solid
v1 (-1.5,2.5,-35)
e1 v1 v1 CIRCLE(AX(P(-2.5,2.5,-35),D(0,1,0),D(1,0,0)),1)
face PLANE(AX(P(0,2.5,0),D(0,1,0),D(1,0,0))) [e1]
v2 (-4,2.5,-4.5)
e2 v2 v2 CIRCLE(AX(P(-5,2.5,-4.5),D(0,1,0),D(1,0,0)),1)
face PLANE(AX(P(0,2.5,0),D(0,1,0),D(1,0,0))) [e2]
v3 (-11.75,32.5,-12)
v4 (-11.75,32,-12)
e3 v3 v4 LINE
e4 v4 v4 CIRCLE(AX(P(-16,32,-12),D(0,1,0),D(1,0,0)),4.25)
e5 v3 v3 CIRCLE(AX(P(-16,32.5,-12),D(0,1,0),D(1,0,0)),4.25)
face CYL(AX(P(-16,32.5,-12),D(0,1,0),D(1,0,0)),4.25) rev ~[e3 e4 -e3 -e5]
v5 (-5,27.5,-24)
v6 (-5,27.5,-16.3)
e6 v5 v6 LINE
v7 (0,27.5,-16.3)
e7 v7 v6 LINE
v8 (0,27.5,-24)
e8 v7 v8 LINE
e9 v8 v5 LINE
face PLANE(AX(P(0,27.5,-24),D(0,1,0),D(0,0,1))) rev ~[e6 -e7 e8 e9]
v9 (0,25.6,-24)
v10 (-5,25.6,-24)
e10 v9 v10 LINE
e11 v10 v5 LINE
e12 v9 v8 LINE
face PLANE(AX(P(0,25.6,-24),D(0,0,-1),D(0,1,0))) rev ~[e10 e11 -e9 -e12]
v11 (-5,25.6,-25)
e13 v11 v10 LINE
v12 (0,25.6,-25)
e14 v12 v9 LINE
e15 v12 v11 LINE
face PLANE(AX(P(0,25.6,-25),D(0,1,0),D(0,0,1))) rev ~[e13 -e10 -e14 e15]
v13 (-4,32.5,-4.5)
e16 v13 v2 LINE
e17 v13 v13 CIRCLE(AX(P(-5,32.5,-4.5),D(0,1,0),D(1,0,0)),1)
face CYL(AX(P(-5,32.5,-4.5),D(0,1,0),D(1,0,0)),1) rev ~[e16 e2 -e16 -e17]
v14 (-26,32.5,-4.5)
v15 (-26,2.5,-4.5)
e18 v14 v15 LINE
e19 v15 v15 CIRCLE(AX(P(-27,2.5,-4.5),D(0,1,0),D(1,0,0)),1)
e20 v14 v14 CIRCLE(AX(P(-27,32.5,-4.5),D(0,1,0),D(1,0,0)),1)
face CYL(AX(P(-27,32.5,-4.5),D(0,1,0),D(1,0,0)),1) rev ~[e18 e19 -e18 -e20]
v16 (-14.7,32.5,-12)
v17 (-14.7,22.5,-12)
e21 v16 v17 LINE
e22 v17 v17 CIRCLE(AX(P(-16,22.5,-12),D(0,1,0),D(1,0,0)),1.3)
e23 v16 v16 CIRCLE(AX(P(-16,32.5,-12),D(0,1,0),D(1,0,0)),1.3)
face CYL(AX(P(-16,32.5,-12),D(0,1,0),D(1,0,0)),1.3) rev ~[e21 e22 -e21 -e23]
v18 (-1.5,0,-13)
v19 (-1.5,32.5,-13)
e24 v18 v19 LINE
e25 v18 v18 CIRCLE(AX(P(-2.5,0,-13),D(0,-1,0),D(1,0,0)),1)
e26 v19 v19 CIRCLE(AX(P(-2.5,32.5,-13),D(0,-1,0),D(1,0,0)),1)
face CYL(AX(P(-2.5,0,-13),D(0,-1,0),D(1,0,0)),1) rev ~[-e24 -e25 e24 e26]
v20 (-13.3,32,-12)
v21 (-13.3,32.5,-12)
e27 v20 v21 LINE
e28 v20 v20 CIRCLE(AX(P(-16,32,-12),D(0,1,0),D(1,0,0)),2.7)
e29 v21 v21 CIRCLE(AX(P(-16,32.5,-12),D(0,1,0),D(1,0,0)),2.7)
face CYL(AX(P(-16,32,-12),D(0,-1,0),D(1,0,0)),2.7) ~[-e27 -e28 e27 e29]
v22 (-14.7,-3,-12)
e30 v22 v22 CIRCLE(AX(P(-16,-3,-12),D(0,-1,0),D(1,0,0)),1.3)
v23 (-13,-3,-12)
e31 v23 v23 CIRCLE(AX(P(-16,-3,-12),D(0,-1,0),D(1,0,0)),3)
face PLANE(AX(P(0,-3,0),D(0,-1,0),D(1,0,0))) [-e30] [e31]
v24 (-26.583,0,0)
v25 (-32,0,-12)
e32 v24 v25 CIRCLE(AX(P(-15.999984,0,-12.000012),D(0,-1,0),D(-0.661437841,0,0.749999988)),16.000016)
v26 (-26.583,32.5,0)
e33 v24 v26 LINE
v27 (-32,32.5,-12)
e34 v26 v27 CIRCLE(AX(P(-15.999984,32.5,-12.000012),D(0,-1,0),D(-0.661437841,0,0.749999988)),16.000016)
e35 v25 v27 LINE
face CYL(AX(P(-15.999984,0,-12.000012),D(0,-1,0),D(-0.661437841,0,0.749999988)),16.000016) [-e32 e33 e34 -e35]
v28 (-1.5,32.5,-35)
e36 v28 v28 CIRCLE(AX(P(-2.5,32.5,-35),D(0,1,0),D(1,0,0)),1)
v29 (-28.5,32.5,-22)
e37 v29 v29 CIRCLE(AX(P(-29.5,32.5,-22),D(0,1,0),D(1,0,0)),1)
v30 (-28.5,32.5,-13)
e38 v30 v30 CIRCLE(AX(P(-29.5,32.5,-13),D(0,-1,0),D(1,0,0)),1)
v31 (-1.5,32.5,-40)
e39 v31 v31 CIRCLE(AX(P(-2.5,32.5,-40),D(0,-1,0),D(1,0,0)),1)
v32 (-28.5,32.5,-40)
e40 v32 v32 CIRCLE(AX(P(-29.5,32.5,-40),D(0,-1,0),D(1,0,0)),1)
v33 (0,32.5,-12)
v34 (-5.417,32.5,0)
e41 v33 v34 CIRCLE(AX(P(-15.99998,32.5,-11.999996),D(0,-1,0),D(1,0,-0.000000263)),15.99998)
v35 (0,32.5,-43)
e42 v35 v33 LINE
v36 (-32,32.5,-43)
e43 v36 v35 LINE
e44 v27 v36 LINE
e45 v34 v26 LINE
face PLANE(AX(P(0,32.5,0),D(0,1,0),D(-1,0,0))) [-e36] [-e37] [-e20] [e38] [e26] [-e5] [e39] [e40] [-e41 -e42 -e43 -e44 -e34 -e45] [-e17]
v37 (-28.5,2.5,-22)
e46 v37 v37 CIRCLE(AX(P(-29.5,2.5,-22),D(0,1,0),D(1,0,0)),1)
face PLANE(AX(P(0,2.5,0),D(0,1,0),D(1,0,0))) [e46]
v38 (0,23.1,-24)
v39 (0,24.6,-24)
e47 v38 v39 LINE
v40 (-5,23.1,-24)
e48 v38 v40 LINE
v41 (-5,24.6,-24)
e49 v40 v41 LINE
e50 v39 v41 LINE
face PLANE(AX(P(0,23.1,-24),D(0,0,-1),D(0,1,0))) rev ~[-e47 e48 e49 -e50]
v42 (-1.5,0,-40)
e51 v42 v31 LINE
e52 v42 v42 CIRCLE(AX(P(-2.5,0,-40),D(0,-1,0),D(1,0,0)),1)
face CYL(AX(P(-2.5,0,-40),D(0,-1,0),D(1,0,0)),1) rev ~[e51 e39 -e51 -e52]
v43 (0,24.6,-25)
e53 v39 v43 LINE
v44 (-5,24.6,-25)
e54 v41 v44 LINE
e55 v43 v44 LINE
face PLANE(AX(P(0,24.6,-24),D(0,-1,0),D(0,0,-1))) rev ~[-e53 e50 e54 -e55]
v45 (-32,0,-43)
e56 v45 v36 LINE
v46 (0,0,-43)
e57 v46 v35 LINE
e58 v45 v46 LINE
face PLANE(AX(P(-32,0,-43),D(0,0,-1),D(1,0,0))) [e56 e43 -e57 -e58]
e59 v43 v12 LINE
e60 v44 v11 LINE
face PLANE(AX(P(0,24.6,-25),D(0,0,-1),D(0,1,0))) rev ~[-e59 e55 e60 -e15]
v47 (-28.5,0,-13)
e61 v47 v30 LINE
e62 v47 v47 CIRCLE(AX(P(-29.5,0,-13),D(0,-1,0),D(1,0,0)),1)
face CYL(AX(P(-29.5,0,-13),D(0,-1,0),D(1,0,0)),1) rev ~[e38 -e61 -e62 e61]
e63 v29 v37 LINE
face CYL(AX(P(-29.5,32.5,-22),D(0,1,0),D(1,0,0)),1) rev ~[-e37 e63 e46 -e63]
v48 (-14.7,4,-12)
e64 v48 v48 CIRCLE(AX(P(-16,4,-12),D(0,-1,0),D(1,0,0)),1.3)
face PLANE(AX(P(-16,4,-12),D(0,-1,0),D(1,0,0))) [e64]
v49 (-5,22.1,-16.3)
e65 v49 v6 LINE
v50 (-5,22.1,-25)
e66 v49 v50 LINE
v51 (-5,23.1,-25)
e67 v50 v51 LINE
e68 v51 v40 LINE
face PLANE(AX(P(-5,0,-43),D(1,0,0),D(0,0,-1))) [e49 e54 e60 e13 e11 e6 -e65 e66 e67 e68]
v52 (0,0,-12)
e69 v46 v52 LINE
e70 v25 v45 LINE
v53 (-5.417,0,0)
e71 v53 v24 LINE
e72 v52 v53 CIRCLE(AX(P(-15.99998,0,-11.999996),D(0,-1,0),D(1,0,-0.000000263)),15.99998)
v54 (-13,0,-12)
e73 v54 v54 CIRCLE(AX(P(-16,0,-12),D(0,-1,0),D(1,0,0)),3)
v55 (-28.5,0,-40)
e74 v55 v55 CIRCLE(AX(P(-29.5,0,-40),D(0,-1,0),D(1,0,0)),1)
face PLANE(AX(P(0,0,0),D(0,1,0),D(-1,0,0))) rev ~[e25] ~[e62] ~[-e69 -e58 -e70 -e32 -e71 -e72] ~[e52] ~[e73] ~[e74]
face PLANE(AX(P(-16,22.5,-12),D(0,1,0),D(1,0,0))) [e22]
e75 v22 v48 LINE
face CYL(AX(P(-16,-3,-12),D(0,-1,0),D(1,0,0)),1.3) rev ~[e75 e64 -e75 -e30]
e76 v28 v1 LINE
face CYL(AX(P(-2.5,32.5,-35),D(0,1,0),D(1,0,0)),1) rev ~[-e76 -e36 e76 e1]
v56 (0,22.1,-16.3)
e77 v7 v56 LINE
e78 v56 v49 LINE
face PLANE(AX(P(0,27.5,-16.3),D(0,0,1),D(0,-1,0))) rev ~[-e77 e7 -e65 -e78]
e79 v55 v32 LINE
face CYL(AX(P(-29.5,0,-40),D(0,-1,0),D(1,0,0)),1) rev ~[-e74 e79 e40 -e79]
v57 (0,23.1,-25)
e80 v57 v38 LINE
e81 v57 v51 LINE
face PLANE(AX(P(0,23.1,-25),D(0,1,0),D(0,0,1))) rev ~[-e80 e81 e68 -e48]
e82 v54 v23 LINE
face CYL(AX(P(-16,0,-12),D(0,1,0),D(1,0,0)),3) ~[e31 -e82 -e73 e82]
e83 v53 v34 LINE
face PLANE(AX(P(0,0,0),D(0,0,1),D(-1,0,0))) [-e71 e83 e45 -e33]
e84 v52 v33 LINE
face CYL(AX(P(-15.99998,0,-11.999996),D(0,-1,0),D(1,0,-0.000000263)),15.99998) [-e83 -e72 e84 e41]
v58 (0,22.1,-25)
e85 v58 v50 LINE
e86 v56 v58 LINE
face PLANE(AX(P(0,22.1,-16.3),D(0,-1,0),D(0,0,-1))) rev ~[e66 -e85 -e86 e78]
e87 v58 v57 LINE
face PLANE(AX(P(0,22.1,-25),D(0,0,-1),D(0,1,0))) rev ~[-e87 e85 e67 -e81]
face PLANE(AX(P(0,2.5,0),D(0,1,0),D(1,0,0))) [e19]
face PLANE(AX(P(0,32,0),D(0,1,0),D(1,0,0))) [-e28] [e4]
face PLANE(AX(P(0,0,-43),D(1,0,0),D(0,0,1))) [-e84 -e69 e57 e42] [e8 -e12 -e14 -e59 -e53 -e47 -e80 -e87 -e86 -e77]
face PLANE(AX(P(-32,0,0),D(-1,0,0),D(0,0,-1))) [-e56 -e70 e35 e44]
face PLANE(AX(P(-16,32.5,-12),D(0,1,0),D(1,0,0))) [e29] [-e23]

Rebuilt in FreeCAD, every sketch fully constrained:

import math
import FreeCAD as App
import Part
import Sketcher
from FreeCAD import Vector


def add_polygon(sketch, points):
    """Adds a closed chain of lines whose ends are joined by coincident constraints."""
    first, n = sketch.GeometryCount, len(points)
    for a, b in zip(points, points[1:] + points[:1]):
        sketch.addGeometry(Part.LineSegment(App.Vector(*a, 0), App.Vector(*b, 0)), False)
    for i in range(n):
        sketch.addConstraint(Sketcher.Constraint("Coincident", first + i, 2, first + (i + 1) % n, 1))

doc = App.newDocument("Part")
params = doc.addObject("Spreadsheet::Sheet", "Params")
for row, (alias, value) in enumerate([
    ("sketch1_width", "32 mm"),
    ("sketch1_height", "43 mm"),
    ("pad1_length", "32.5 mm"),
    ("sketch2_radius", "16 mm"),
    ("sketch2_height", "12 mm"),
    ("pocket1_length", "32.5 mm"),
    ("sketch3_diameter", "2 mm"),
    ("pocket2_length", "32.5 mm"),
    ("sketch4_diameter", "2 mm"),
    ("pocket3_length", "30 mm"),
    ("sketch5_diameter", "6 mm"),
    ("pad2_length", "3 mm"),
    ("sketch6_diameter", "2.6 mm"),
    ("pocket4_length", "7 mm"),
    ("sketch7_diameter", "8.5 mm"),
    ("pocket5_length", "0.5 mm"),
    ("sketch8_diameter", "5.4 mm"),
    ("pad3_length", "0.5 mm"),
    ("sketch9_diameter", "2.6 mm"),
    ("pocket6_length", "10 mm"),
    ("sketch10_width", "1 mm"),
    ("sketch10_height", "8.7 mm"),
    ("pocket7_length", "5 mm"),
], start=1):
    params.set(f"A{row}", alias)
    params.set(f"B{row}", "=" + value)
    params.setAlias(f"B{row}", alias)

body = doc.addObject("PartDesign::Body", "Body")

sketch1 = body.newObject("Sketcher::SketchObject", "Sketch")
sketch1.AttachmentSupport = (doc.getObject("XZ_Plane"), [""])
sketch1.MapMode = "FlatFace"
add_polygon(sketch1, [(-32, 0), (0, 0), (0, -43), (-32, -43)])
sketch1.addConstraint(Sketcher.Constraint("Horizontal", 0))
sketch1.addConstraint(Sketcher.Constraint("Vertical", 1))
sketch1.addConstraint(Sketcher.Constraint("Horizontal", 2))
sketch1.addConstraint(Sketcher.Constraint("Vertical", 3))
sketch1.addConstraint(Sketcher.Constraint("Coincident", 0, 2, -1, 1))
sketch1.addConstraint(Sketcher.Constraint("DistanceX", 0, 1, 0, 2, 32.0))
sketch1.addConstraint(Sketcher.Constraint("DistanceY", 1, 2, 1, 1, 43.0))
sketch1.setExpression("Constraints[9]", "Params.sketch1_width")
sketch1.setExpression("Constraints[10]", "Params.sketch1_height")
pad1 = body.newObject("PartDesign::Pad", "Pad")
pad1.Profile = sketch1
pad1.setExpression("Length", "Params.pad1_length")
pad1.Reversed = True

sketch2 = body.newObject("Sketcher::SketchObject", "Sketch001")
sketch2.AttachmentSupport = (doc.getObject("XZ_Plane"), [""])
sketch2.MapMode = "FlatFace"
sketch2.addGeometry(Part.LineSegment(Vector(-27, 0, 0), Vector(-32, 0, 0)), False)
sketch2.addGeometry(Part.LineSegment(Vector(-32, 0, 0), Vector(-32, -12, 0)), False)
sketch2.addGeometry(Part.ArcOfCircle(Part.Circle(Vector(-16, -12, 0), Vector(0, 0, 1), 16), math.radians(131), math.radians(180)), False)
sketch2.addGeometry(Part.LineSegment(Vector(0, 0, 0), Vector(-5, 0, 0)), False)
sketch2.addGeometry(Part.ArcOfCircle(Part.Circle(Vector(-16, -12, 0), Vector(0, 0, 1), 16), math.radians(0), math.radians(49)), False)
sketch2.addGeometry(Part.LineSegment(Vector(0, -12, 0), Vector(0, 0, 0)), False)
sketch2.addConstraint(Sketcher.Constraint("Coincident", 0, 2, 1, 1))
sketch2.addConstraint(Sketcher.Constraint("Tangent", 1, 2, 2, 2))
sketch2.addConstraint(Sketcher.Constraint("Coincident", 2, 1, 0, 1))
sketch2.addConstraint(Sketcher.Constraint("Coincident", 3, 2, 4, 2))
sketch2.addConstraint(Sketcher.Constraint("Tangent", 4, 1, 5, 1))
sketch2.addConstraint(Sketcher.Constraint("Coincident", 5, 2, 3, 1))
sketch2.addConstraint(Sketcher.Constraint("Horizontal", 0))
sketch2.addConstraint(Sketcher.Constraint("Vertical", 1))
sketch2.addConstraint(Sketcher.Constraint("Horizontal", 3))
sketch2.addConstraint(Sketcher.Constraint("Vertical", 5))
sketch2.addConstraint(Sketcher.Constraint("Coincident", 5, 2, -1, 1))
sketch2.addConstraint(Sketcher.Constraint("Coincident", 4, 3, 2, 3))
sketch2.addConstraint(Sketcher.Constraint("Equal", 2, 4))
sketch2.addConstraint(Sketcher.Constraint("PointOnObject", 0, 2, -1))
sketch2.addConstraint(Sketcher.Constraint("Radius", 2, 16.0))
sketch2.addConstraint(Sketcher.Constraint("DistanceY", 1, 2, 1, 1, 12.0))
sketch2.setExpression("Constraints[14]", "Params.sketch2_radius")
sketch2.setExpression("Constraints[15]", "Params.sketch2_height")
pocket1 = body.newObject("PartDesign::Pocket", "Pocket")
pocket1.Profile = sketch2
pocket1.setExpression("Length", "Params.pocket1_length")

sketch3 = body.newObject("Sketcher::SketchObject", "Sketch002")
sketch3.AttachmentSupport = (doc.getObject("XZ_Plane"), [""])
sketch3.MapMode = "FlatFace"
sketch3.addGeometry(Part.Circle(Vector(-29.5, -13, 0), Vector(0, 0, 1), 1), False)
sketch3.addGeometry(Part.Circle(Vector(-2.5, -13, 0), Vector(0, 0, 1), 1), False)
sketch3.addGeometry(Part.Circle(Vector(-29.5, -40, 0), Vector(0, 0, 1), 1), False)
sketch3.addGeometry(Part.Circle(Vector(-2.5, -40, 0), Vector(0, 0, 1), 1), False)
sketch3.addConstraint(Sketcher.Constraint("Equal", 0, 1))
sketch3.addConstraint(Sketcher.Constraint("Equal", 1, 2))
sketch3.addConstraint(Sketcher.Constraint("Equal", 2, 3))
sketch3.addConstraint(Sketcher.Constraint("Horizontal", 0, 3, 1, 3))
sketch3.addConstraint(Sketcher.Constraint("Horizontal", 2, 3, 3, 3))
sketch3.addConstraint(Sketcher.Constraint("Vertical", 0, 3, 2, 3))
sketch3.addConstraint(Sketcher.Constraint("Vertical", 1, 3, 3, 3))
sketch3.addConstraint(Sketcher.Constraint("Diameter", 0, 2.0))
sketch3.addConstraint(Sketcher.Constraint("DistanceY", 0, 3, -1, 1, 13.0))
sketch3.addConstraint(Sketcher.Constraint("DistanceY", 2, 3, -1, 1, 40.0))
sketch3.addConstraint(Sketcher.Constraint("DistanceX", 0, 3, 1, 3, 27.0))
sketch3.addConstraint(Sketcher.Constraint("DistanceX", 0, 3, -1, 1, 29.5))
sketch3.setExpression("Constraints[7]", "Params.sketch3_diameter")
pocket2 = body.newObject("PartDesign::Pocket", "Pocket001")
pocket2.Profile = sketch3
pocket2.setExpression("Length", "Params.pocket2_length")

sketch4 = body.newObject("Sketcher::SketchObject", "Sketch003")
sketch4.AttachmentSupport = (doc.getObject("XZ_Plane"), [""])
sketch4.MapMode = "FlatFace"
sketch4.AttachmentOffset = App.Placement(Vector(0, 0, -32.5), App.Rotation())
sketch4.addGeometry(Part.Circle(Vector(-2.5, -35, 0), Vector(0, 0, 1), 1), False)
sketch4.addGeometry(Part.Circle(Vector(-29.5, -22, 0), Vector(0, 0, 1), 1), False)
sketch4.addGeometry(Part.Circle(Vector(-27, -4.5, 0), Vector(0, 0, 1), 1), False)
sketch4.addGeometry(Part.Circle(Vector(-5, -4.5, 0), Vector(0, 0, 1), 1), False)
sketch4.addConstraint(Sketcher.Constraint("Equal", 0, 1))
sketch4.addConstraint(Sketcher.Constraint("Equal", 1, 2))
sketch4.addConstraint(Sketcher.Constraint("Equal", 2, 3))
sketch4.addConstraint(Sketcher.Constraint("Horizontal", 2, 3, 3, 3))
sketch4.addConstraint(Sketcher.Constraint("Diameter", 0, 2.0))
sketch4.addConstraint(Sketcher.Constraint("DistanceY", 0, 3, -1, 1, 35.0))
sketch4.addConstraint(Sketcher.Constraint("DistanceY", 1, 3, -1, 1, 22.0))
sketch4.addConstraint(Sketcher.Constraint("DistanceX", 2, 3, -1, 1, 27.0))
sketch4.addConstraint(Sketcher.Constraint("DistanceX", 3, 3, -1, 1, 5.0))
sketch4.addConstraint(Sketcher.Constraint("DistanceX", 1, 3, 0, 3, 27.0))
sketch4.addConstraint(Sketcher.Constraint("DistanceX", 0, 3, -1, 1, 2.5))
sketch4.addConstraint(Sketcher.Constraint("DistanceY", 2, 3, -1, 1, 4.5))
sketch4.setExpression("Constraints[4]", "Params.sketch4_diameter")
pocket3 = body.newObject("PartDesign::Pocket", "Pocket002")
pocket3.Profile = sketch4
pocket3.setExpression("Length", "Params.pocket3_length")
pocket3.Reversed = True

sketch5 = body.newObject("Sketcher::SketchObject", "Sketch004")
sketch5.AttachmentSupport = (doc.getObject("XZ_Plane"), [""])
sketch5.MapMode = "FlatFace"
sketch5.addGeometry(Part.Circle(Vector(-16, -12, 0), Vector(0, 0, 1), 3), False)
sketch5.addConstraint(Sketcher.Constraint("Diameter", 0, 6.0))
sketch5.addConstraint(Sketcher.Constraint("DistanceX", 0, 3, -1, 1, 16.0))
sketch5.addConstraint(Sketcher.Constraint("DistanceY", 0, 3, -1, 1, 12.0))
sketch5.setExpression("Constraints[0]", "Params.sketch5_diameter")
pad2 = body.newObject("PartDesign::Pad", "Pad001")
pad2.Profile = sketch5
pad2.setExpression("Length", "Params.pad2_length")

sketch6 = body.newObject("Sketcher::SketchObject", "Sketch005")
sketch6.AttachmentSupport = (doc.getObject("XZ_Plane"), [""])
sketch6.MapMode = "FlatFace"
sketch6.AttachmentOffset = App.Placement(Vector(0, 0, 3), App.Rotation())
sketch6.addGeometry(Part.Circle(Vector(-16, -12, 0), Vector(0, 0, 1), 1.3), False)
sketch6.addConstraint(Sketcher.Constraint("Diameter", 0, 2.6))
sketch6.addConstraint(Sketcher.Constraint("DistanceX", 0, 3, -1, 1, 16.0))
sketch6.addConstraint(Sketcher.Constraint("DistanceY", 0, 3, -1, 1, 12.0))
sketch6.setExpression("Constraints[0]", "Params.sketch6_diameter")
pocket4 = body.newObject("PartDesign::Pocket", "Pocket003")
pocket4.Profile = sketch6
pocket4.setExpression("Length", "Params.pocket4_length")

sketch7 = body.newObject("Sketcher::SketchObject", "Sketch006")
sketch7.AttachmentSupport = (doc.getObject("XZ_Plane"), [""])
sketch7.MapMode = "FlatFace"
sketch7.AttachmentOffset = App.Placement(Vector(0, 0, -32.5), App.Rotation())
sketch7.addGeometry(Part.Circle(Vector(-16, -12, 0), Vector(0, 0, 1), 4.2), False)
sketch7.addConstraint(Sketcher.Constraint("Diameter", 0, 8.5))
sketch7.addConstraint(Sketcher.Constraint("DistanceX", 0, 3, -1, 1, 16.0))
sketch7.addConstraint(Sketcher.Constraint("DistanceY", 0, 3, -1, 1, 12.0))
sketch7.setExpression("Constraints[0]", "Params.sketch7_diameter")
pocket5 = body.newObject("PartDesign::Pocket", "Pocket004")
pocket5.Profile = sketch7
pocket5.setExpression("Length", "Params.pocket5_length")
pocket5.Reversed = True

sketch8 = body.newObject("Sketcher::SketchObject", "Sketch007")
sketch8.AttachmentSupport = (doc.getObject("XZ_Plane"), [""])
sketch8.MapMode = "FlatFace"
sketch8.AttachmentOffset = App.Placement(Vector(0, 0, -32), App.Rotation())
sketch8.addGeometry(Part.Circle(Vector(-16, -12, 0), Vector(0, 0, 1), 2.7), False)
sketch8.addConstraint(Sketcher.Constraint("Diameter", 0, 5.4))
sketch8.addConstraint(Sketcher.Constraint("DistanceX", 0, 3, -1, 1, 16.0))
sketch8.addConstraint(Sketcher.Constraint("DistanceY", 0, 3, -1, 1, 12.0))
sketch8.setExpression("Constraints[0]", "Params.sketch8_diameter")
pad3 = body.newObject("PartDesign::Pad", "Pad002")
pad3.Profile = sketch8
pad3.setExpression("Length", "Params.pad3_length")
pad3.Reversed = True

sketch9 = body.newObject("Sketcher::SketchObject", "Sketch008")
sketch9.AttachmentSupport = (doc.getObject("XZ_Plane"), [""])
sketch9.MapMode = "FlatFace"
sketch9.AttachmentOffset = App.Placement(Vector(0, 0, -32.5), App.Rotation())
sketch9.addGeometry(Part.Circle(Vector(-16, -12, 0), Vector(0, 0, 1), 1.3), False)
sketch9.addConstraint(Sketcher.Constraint("Diameter", 0, 2.6))
sketch9.addConstraint(Sketcher.Constraint("DistanceX", 0, 3, -1, 1, 16.0))
sketch9.addConstraint(Sketcher.Constraint("DistanceY", 0, 3, -1, 1, 12.0))
sketch9.setExpression("Constraints[0]", "Params.sketch9_diameter")
pocket6 = body.newObject("PartDesign::Pocket", "Pocket005")
pocket6.Profile = sketch9
pocket6.setExpression("Length", "Params.pocket6_length")
pocket6.Reversed = True

sketch10 = body.newObject("Sketcher::SketchObject", "Sketch009")
sketch10.AttachmentSupport = (doc.getObject("YZ_Plane"), [""])
sketch10.MapMode = "FlatFace"
add_polygon(sketch10, [(27.5, -24), (27.5, -16.3), (22.1, -16.3), (22.1, -25), (23.1, -25), (23.1, -24), (24.6, -24), (24.6, -25), (25.6, -25), (25.6, -24)])
sketch10.addConstraint(Sketcher.Constraint("Vertical", 0))
sketch10.addConstraint(Sketcher.Constraint("Horizontal", 1))
sketch10.addConstraint(Sketcher.Constraint("Vertical", 2))
sketch10.addConstraint(Sketcher.Constraint("Horizontal", 3))
sketch10.addConstraint(Sketcher.Constraint("Vertical", 4))
sketch10.addConstraint(Sketcher.Constraint("Horizontal", 5))
sketch10.addConstraint(Sketcher.Constraint("Vertical", 6))
sketch10.addConstraint(Sketcher.Constraint("Horizontal", 7))
sketch10.addConstraint(Sketcher.Constraint("Vertical", 8))
sketch10.addConstraint(Sketcher.Constraint("Horizontal", 9))
sketch10.addConstraint(Sketcher.Constraint("Horizontal", 3, 2, 6, 2))
sketch10.addConstraint(Sketcher.Constraint("Horizontal", 5, 2, 8, 2))
sketch10.addConstraint(Sketcher.Constraint("Equal", 3, 7))
sketch10.addConstraint(Sketcher.Constraint("Equal", 7, 4))
sketch10.addConstraint(Sketcher.Constraint("DistanceX", 3, 1, 3, 2, 1.0))
sketch10.addConstraint(Sketcher.Constraint("DistanceY", 2, 2, 2, 1, 8.7))
sketch10.addConstraint(Sketcher.Constraint("DistanceX", 2, 2, 5, 2, 2.5))
sketch10.addConstraint(Sketcher.Constraint("DistanceX", 5, 2, 0, 2, 2.9))
sketch10.addConstraint(Sketcher.Constraint("DistanceY", 2, 2, -1, 1, 25.0))
sketch10.addConstraint(Sketcher.Constraint("DistanceX", -1, 1, 0, 2, 27.5))
sketch10.setExpression("Constraints[24]", "Params.sketch10_width")
sketch10.setExpression("Constraints[25]", "Params.sketch10_height")
pocket7 = body.newObject("PartDesign::Pocket", "Pocket006")
pocket7.Profile = sketch10
pocket7.setExpression("Length", "Params.pocket7_length")

doc.recompute()
